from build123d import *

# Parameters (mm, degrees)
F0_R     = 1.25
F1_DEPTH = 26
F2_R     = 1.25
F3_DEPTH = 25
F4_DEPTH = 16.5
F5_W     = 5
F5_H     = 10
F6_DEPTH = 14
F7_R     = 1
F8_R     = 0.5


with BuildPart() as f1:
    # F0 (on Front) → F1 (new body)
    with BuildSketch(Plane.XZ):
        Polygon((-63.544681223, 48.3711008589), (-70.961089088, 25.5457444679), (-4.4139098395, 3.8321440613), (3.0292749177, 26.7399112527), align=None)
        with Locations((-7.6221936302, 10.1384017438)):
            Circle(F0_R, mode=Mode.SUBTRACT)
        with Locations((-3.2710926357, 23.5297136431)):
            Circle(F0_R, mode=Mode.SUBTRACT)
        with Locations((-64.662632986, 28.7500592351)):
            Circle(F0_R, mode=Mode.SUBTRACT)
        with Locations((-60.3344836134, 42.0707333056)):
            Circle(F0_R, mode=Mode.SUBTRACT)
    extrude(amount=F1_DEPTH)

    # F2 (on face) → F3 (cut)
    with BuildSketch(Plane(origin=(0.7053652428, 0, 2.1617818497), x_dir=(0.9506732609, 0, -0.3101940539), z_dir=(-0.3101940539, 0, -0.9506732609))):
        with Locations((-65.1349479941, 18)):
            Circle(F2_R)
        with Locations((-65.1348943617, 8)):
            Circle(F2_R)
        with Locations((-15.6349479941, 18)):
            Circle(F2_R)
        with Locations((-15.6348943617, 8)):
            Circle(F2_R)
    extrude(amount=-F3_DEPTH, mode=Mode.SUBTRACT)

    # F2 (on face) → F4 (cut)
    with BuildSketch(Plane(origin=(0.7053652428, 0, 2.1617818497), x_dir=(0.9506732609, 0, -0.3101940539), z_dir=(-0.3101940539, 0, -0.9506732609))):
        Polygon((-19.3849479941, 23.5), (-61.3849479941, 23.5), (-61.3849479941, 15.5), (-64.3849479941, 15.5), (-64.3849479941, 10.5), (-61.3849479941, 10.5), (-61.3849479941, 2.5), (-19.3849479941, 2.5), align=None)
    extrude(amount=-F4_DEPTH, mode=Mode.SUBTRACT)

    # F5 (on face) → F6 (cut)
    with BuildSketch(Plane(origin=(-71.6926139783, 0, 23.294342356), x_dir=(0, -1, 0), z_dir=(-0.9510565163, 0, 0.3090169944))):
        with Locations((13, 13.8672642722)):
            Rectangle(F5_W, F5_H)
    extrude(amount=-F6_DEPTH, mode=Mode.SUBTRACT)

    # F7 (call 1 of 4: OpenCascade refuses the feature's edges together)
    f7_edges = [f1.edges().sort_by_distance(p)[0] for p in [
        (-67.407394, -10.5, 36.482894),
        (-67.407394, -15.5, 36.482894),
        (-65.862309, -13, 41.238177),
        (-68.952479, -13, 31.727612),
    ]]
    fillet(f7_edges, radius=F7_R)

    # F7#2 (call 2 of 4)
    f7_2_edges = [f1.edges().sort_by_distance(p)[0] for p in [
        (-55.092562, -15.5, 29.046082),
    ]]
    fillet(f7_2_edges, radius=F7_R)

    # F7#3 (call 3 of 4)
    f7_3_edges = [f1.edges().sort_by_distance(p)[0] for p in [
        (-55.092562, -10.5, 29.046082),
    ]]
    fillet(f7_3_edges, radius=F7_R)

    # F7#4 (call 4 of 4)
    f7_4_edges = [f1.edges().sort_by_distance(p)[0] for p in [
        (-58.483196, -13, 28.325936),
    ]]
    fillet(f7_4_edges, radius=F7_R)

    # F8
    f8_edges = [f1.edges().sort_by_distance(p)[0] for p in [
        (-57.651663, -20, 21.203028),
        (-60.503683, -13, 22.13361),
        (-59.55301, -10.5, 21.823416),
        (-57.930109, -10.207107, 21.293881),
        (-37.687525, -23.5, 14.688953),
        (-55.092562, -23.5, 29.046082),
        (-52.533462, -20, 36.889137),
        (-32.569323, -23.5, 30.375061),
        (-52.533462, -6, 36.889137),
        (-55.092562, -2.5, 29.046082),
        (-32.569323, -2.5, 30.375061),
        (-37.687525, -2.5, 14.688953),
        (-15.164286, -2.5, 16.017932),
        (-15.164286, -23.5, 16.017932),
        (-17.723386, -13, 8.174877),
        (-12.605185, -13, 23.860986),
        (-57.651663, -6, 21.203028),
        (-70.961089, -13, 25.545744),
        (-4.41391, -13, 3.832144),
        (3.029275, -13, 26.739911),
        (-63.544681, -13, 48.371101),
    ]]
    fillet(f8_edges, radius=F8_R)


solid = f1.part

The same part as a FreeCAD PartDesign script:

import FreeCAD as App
import Part
import Sketcher
from FreeCAD import Vector
Q = App.Units.Quantity


def edges_at(feature, points):
    """Names of the edges that pass closest to the given points."""
    edges = feature.Shape.Edges
    near = lambda p: min(range(len(edges)), key=lambda i: edges[i].distToShape(Part.Vertex(*p))[0])
    return sorted({f"Edge{near(p) + 1}" for p in points})


def add_polygon(sketch, points):
    """Adds a closed chain of lines whose ends are joined by coincident constraints."""
    first, n = sketch.GeometryCount, len(points)
    for a, b in zip(points, points[1:] + points[:1]):
        sketch.addGeometry(Part.LineSegment(App.Vector(*a, 0), App.Vector(*b, 0)), False)
    for i in range(n):
        sketch.addConstraint(Sketcher.Constraint("Coincident", first + i, 2, first + (i + 1) % n, 1))

doc = App.newDocument("Part")
body = doc.addObject("PartDesign::Body", "Body")

# Sketch on XZ plane
sketch1 = body.newObject("Sketcher::SketchObject", "Sketch")
sketch1.AttachmentSupport = (doc.getObject("XZ_Plane"), [""])
sketch1.MapMode = "FlatFace"
add_polygon(sketch1, [(-63.5, 48.4), (-71, 25.5), (-4.4, 3.8), (3, 26.7)])  # lines 0-3
sketch1.addGeometry(Part.Circle(Vector(-7.6, 10.1, 0), Vector(0, 0, 1), 1.2), False)  # 4
sketch1.addGeometry(Part.Circle(Vector(-3.3, 23.5, 0), Vector(0, 0, 1), 1.2), False)  # 5
sketch1.addGeometry(Part.Circle(Vector(-64.7, 28.8, 0), Vector(0, 0, 1), 1.2), False)  # 6
sketch1.addGeometry(Part.Circle(Vector(-60.3, 42.1, 0), Vector(0, 0, 1), 1.2), False)  # 7
sketch1.addConstraint(Sketcher.Constraint("Equal", 4, 5))
sketch1.addConstraint(Sketcher.Constraint("Equal", 5, 6))
sketch1.addConstraint(Sketcher.Constraint("Equal", 6, 7))
sketch1.addConstraint(Sketcher.Constraint("Parallel", 0, 2))
sketch1.addConstraint(Sketcher.Constraint("Perpendicular", 2, 3))
sketch1.addConstraint(Sketcher.Constraint("Diameter", 4, 2.5))
sketch1.addConstraint(Sketcher.Constraint("Angle", 0, Q("-108 deg")))
sketch1.addConstraint(Sketcher.Constraint("Distance", 0, 24.0))
sketch1.addConstraint(Sketcher.Constraint("Distance", 3, 70.0))
sketch1.addConstraint(Sketcher.Constraint("DistanceY", -1, 1, 4, 3, 10.138402))
sketch1.addConstraint(Sketcher.Constraint("DistanceY", -1, 1, 3, 2, 48.371101))
sketch1.addConstraint(Sketcher.Constraint("DistanceX", 4, 3, 5, 3, 4.351101))
sketch1.addConstraint(Sketcher.Constraint("DistanceY", 1, 2, 0, 2, 21.7136))
sketch1.addConstraint(Sketcher.Constraint("DistanceY", -1, 1, 6, 3, 28.750059))
sketch1.addConstraint(Sketcher.Constraint("DistanceX", 0, 2, -1, 1, 70.961089))
sketch1.addConstraint(Sketcher.Constraint("DistanceY", 4, 3, 5, 3, 13.391312))
sketch1.addConstraint(Sketcher.Constraint("DistanceX", 6, 3, 4, 3, 57.040439))
sketch1.addConstraint(Sketcher.Constraint("DistanceX", 6, 3, 7, 3, 4.328149))
sketch1.addConstraint(Sketcher.Constraint("DistanceY", 5, 3, 7, 3, 18.54102))
sketch1.addConstraint(Sketcher.Constraint("DistanceX", 4, 3, 2, 2, 10.651469))
pad1 = body.newObject("PartDesign::Pad", "Pad")
pad1.Profile = sketch1
pad1.Length = 26

# Sketch on an angled plane
sketch2 = body.newObject("Sketcher::SketchObject", "Sketch001")
sketch2.Placement = App.Placement(Vector(0.705365, 0, 2.161782), App.Rotation(Vector(0.950673261, 0, -0.310194054), Vector(0, -1, 0), Vector(-0.310194054, 0, -0.950673261), "ZXY"))
sketch2.addGeometry(Part.Circle(Vector(-65.1, 18, 0), Vector(0, 0, 1), 1.2), False)
sketch2.addGeometry(Part.Circle(Vector(-65.1, 8, 0), Vector(0, 0, 1), 1.2), False)
sketch2.addGeometry(Part.Circle(Vector(-15.6, 18, 0), Vector(0, 0, 1), 1.2), False)
sketch2.addGeometry(Part.Circle(Vector(-15.6, 8, 0), Vector(0, 0, 1), 1.2), False)
sketch2.addConstraint(Sketcher.Constraint("Equal", 0, 1))
sketch2.addConstraint(Sketcher.Constraint("Equal", 1, 2))
sketch2.addConstraint(Sketcher.Constraint("Equal", 2, 3))
sketch2.addConstraint(Sketcher.Constraint("Horizontal", 0, 3, 2, 3))
sketch2.addConstraint(Sketcher.Constraint("Horizontal", 1, 3, 3, 3))
sketch2.addConstraint(Sketcher.Constraint("Diameter", 0, 2.5))
sketch2.addConstraint(Sketcher.Constraint("DistanceY", -1, 1, 0, 3, 18.0))
sketch2.addConstraint(Sketcher.Constraint("DistanceY", -1, 1, 1, 3, 8.0))
sketch2.addConstraint(Sketcher.Constraint("DistanceX", 0, 3, 2, 3, 49.5))
sketch2.addConstraint(Sketcher.Constraint("DistanceX", 1, 3, 3, 3, 49.5))
sketch2.addConstraint(Sketcher.Constraint("DistanceX", 0, 3, -1, 1, 65.134948))
sketch2.addConstraint(Sketcher.Constraint("DistanceX", 1, 3, -1, 1, 65.134894))
pocket1 = body.newObject("PartDesign::Pocket", "Pocket")
pocket1.Profile = sketch2
pocket1.Length = 25

# Sketch on an angled plane
sketch3 = body.newObject("Sketcher::SketchObject", "Sketch002")
sketch3.Placement = App.Placement(Vector(0.705365, 0, 2.161782), App.Rotation(Vector(0.950673261, 0, -0.310194054), Vector(0, -1, 0), Vector(-0.310194054, 0, -0.950673261), "ZXY"))
add_polygon(sketch3, [(-19.4, 23.5), (-61.4, 23.5), (-61.4, 15.5), (-64.4, 15.5), (-64.4, 10.5), (-61.4, 10.5), (-61.4, 2.5), (-19.4, 2.5)])  # lines 0-7
sketch3.addConstraint(Sketcher.Constraint("Horizontal", 0))
sketch3.addConstraint(Sketcher.Constraint("Vertical", 1))
sketch3.addConstraint(Sketcher.Constraint("Horizontal", 2))
sketch3.addConstraint(Sketcher.Constraint("Vertical", 3))
sketch3.addConstraint(Sketcher.Constraint("Horizontal", 4))
sketch3.addConstraint(Sketcher.Constraint("Vertical", 5))
sketch3.addConstraint(Sketcher.Constraint("Horizontal", 6))
sketch3.addConstraint(Sketcher.Constraint("Vertical", 7))
sketch3.addConstraint(Sketcher.Constraint("Vertical", 1, 2, 4, 2))
sketch3.addConstraint(Sketcher.Constraint("Equal", 1, 5))
sketch3.addConstraint(Sketcher.Constraint("DistanceX", 0, 2, 0, 1, 42.0))
sketch3.addConstraint(Sketcher.Constraint("DistanceX", 2, 2, 2, 1, 3.0))
sketch3.addConstraint(Sketcher.Constraint("DistanceY", 1, 2, 1, 1, 8.0))
sketch3.addConstraint(Sketcher.Constraint("DistanceY", 3, 2, 3, 1, 5.0))
sketch3.addConstraint(Sketcher.Constraint("DistanceY", -1, 1, 0, 2, 23.5))
sketch3.addConstraint(Sketcher.Constraint("DistanceX", 0, 2, -1, 1, 61.384948))
pocket2 = body.newObject("PartDesign::Pocket", "Pocket001")
pocket2.Profile = sketch3
pocket2.Length = 16.5

# Sketch on an angled plane
sketch4 = body.newObject("Sketcher::SketchObject", "Sketch003")
sketch4.Placement = App.Placement(Vector(-71.692614, 0, 23.294342), App.Rotation(Vector(0, -1, 0), Vector(0.309016994, 0, 0.951056516), Vector(-0.951056516, 0, 0.309016994), "ZXY"))
add_polygon(sketch4, [(10, 19), (10, 9), (16, 9), (16, 19)])  # lines 0-3
sketch4.addConstraint(Sketcher.Constraint("Vertical", 0))
sketch4.addConstraint(Sketcher.Constraint("Horizontal", 1))
sketch4.addConstraint(Sketcher.Constraint("Vertical", 2))
sketch4.addConstraint(Sketcher.Constraint("Horizontal", 3))
sketch4.addConstraint(Sketcher.Constraint("DistanceX", 1, 1, 1, 2, 5.0))
sketch4.addConstraint(Sketcher.Constraint("DistanceY", 0, 2, 0, 1, 10.0))
sketch4.addConstraint(Sketcher.Constraint("DistanceX", -1, 1, 0, 2, 10.5))
sketch4.addConstraint(Sketcher.Constraint("DistanceY", -1, 1, 0, 2, 8.867264))
pocket3 = body.newObject("PartDesign::Pocket", "Pocket002")
pocket3.Profile = sketch4
pocket3.Length = 14
doc.recompute()

fillet = body.newObject("PartDesign::Fillet", "Fillet")
fillet.Base = (pocket3, edges_at(pocket3, [
    (-67.407, -10.5, 36.483),
    (-67.407, -15.5, 36.483),
    (-65.862, -13, 41.238),
    (-68.952, -13, 31.728),
]))
fillet.Radius = 1
doc.recompute()

fillet2 = body.newObject("PartDesign::Fillet", "Fillet001")
fillet2.Base = (fillet, edges_at(fillet, [(-55.093, -15.5, 29.046)]))
fillet2.Radius = 1
doc.recompute()

fillet3 = body.newObject("PartDesign::Fillet", "Fillet002")
fillet3.Base = (fillet2, edges_at(fillet2, [(-55.093, -10.5, 29.046)]))
fillet3.Radius = 1
doc.recompute()

fillet4 = body.newObject("PartDesign::Fillet", "Fillet003")
fillet4.Base = (fillet3, edges_at(fillet3, [(-58.483, -13, 28.326)]))
fillet4.Radius = 1
doc.recompute()

fillet5 = body.newObject("PartDesign::Fillet", "Fillet004")
fillet5.Base = (fillet4, edges_at(fillet4, [
    (-57.652, -20, 21.203),
    (-60.504, -13, 22.134),
    (-59.553, -10.5, 21.823),
    (-57.93, -10.207, 21.294),
    (-37.688, -23.5, 14.689),
    (-55.093, -23.5, 29.046),
    (-52.533, -20, 36.889),
    (-32.569, -23.5, 30.375),
    (-52.533, -6, 36.889),
    (-55.093, -2.5, 29.046),
    (-32.569, -2.5, 30.375),
    (-37.688, -2.5, 14.689),
    (-15.164, -2.5, 16.018),
    (-15.164, -23.5, 16.018),
    (-17.723, -13, 8.175),
    (-12.605, -13, 23.861),
    (-57.652, -6, 21.203),
    (-70.961, -13, 25.546),
    (-4.414, -13, 3.832),
    (3.029, -13, 26.74),
    (-63.545, -13, 48.371),
]))
fillet5.Radius = 0.5

doc.recompute()
